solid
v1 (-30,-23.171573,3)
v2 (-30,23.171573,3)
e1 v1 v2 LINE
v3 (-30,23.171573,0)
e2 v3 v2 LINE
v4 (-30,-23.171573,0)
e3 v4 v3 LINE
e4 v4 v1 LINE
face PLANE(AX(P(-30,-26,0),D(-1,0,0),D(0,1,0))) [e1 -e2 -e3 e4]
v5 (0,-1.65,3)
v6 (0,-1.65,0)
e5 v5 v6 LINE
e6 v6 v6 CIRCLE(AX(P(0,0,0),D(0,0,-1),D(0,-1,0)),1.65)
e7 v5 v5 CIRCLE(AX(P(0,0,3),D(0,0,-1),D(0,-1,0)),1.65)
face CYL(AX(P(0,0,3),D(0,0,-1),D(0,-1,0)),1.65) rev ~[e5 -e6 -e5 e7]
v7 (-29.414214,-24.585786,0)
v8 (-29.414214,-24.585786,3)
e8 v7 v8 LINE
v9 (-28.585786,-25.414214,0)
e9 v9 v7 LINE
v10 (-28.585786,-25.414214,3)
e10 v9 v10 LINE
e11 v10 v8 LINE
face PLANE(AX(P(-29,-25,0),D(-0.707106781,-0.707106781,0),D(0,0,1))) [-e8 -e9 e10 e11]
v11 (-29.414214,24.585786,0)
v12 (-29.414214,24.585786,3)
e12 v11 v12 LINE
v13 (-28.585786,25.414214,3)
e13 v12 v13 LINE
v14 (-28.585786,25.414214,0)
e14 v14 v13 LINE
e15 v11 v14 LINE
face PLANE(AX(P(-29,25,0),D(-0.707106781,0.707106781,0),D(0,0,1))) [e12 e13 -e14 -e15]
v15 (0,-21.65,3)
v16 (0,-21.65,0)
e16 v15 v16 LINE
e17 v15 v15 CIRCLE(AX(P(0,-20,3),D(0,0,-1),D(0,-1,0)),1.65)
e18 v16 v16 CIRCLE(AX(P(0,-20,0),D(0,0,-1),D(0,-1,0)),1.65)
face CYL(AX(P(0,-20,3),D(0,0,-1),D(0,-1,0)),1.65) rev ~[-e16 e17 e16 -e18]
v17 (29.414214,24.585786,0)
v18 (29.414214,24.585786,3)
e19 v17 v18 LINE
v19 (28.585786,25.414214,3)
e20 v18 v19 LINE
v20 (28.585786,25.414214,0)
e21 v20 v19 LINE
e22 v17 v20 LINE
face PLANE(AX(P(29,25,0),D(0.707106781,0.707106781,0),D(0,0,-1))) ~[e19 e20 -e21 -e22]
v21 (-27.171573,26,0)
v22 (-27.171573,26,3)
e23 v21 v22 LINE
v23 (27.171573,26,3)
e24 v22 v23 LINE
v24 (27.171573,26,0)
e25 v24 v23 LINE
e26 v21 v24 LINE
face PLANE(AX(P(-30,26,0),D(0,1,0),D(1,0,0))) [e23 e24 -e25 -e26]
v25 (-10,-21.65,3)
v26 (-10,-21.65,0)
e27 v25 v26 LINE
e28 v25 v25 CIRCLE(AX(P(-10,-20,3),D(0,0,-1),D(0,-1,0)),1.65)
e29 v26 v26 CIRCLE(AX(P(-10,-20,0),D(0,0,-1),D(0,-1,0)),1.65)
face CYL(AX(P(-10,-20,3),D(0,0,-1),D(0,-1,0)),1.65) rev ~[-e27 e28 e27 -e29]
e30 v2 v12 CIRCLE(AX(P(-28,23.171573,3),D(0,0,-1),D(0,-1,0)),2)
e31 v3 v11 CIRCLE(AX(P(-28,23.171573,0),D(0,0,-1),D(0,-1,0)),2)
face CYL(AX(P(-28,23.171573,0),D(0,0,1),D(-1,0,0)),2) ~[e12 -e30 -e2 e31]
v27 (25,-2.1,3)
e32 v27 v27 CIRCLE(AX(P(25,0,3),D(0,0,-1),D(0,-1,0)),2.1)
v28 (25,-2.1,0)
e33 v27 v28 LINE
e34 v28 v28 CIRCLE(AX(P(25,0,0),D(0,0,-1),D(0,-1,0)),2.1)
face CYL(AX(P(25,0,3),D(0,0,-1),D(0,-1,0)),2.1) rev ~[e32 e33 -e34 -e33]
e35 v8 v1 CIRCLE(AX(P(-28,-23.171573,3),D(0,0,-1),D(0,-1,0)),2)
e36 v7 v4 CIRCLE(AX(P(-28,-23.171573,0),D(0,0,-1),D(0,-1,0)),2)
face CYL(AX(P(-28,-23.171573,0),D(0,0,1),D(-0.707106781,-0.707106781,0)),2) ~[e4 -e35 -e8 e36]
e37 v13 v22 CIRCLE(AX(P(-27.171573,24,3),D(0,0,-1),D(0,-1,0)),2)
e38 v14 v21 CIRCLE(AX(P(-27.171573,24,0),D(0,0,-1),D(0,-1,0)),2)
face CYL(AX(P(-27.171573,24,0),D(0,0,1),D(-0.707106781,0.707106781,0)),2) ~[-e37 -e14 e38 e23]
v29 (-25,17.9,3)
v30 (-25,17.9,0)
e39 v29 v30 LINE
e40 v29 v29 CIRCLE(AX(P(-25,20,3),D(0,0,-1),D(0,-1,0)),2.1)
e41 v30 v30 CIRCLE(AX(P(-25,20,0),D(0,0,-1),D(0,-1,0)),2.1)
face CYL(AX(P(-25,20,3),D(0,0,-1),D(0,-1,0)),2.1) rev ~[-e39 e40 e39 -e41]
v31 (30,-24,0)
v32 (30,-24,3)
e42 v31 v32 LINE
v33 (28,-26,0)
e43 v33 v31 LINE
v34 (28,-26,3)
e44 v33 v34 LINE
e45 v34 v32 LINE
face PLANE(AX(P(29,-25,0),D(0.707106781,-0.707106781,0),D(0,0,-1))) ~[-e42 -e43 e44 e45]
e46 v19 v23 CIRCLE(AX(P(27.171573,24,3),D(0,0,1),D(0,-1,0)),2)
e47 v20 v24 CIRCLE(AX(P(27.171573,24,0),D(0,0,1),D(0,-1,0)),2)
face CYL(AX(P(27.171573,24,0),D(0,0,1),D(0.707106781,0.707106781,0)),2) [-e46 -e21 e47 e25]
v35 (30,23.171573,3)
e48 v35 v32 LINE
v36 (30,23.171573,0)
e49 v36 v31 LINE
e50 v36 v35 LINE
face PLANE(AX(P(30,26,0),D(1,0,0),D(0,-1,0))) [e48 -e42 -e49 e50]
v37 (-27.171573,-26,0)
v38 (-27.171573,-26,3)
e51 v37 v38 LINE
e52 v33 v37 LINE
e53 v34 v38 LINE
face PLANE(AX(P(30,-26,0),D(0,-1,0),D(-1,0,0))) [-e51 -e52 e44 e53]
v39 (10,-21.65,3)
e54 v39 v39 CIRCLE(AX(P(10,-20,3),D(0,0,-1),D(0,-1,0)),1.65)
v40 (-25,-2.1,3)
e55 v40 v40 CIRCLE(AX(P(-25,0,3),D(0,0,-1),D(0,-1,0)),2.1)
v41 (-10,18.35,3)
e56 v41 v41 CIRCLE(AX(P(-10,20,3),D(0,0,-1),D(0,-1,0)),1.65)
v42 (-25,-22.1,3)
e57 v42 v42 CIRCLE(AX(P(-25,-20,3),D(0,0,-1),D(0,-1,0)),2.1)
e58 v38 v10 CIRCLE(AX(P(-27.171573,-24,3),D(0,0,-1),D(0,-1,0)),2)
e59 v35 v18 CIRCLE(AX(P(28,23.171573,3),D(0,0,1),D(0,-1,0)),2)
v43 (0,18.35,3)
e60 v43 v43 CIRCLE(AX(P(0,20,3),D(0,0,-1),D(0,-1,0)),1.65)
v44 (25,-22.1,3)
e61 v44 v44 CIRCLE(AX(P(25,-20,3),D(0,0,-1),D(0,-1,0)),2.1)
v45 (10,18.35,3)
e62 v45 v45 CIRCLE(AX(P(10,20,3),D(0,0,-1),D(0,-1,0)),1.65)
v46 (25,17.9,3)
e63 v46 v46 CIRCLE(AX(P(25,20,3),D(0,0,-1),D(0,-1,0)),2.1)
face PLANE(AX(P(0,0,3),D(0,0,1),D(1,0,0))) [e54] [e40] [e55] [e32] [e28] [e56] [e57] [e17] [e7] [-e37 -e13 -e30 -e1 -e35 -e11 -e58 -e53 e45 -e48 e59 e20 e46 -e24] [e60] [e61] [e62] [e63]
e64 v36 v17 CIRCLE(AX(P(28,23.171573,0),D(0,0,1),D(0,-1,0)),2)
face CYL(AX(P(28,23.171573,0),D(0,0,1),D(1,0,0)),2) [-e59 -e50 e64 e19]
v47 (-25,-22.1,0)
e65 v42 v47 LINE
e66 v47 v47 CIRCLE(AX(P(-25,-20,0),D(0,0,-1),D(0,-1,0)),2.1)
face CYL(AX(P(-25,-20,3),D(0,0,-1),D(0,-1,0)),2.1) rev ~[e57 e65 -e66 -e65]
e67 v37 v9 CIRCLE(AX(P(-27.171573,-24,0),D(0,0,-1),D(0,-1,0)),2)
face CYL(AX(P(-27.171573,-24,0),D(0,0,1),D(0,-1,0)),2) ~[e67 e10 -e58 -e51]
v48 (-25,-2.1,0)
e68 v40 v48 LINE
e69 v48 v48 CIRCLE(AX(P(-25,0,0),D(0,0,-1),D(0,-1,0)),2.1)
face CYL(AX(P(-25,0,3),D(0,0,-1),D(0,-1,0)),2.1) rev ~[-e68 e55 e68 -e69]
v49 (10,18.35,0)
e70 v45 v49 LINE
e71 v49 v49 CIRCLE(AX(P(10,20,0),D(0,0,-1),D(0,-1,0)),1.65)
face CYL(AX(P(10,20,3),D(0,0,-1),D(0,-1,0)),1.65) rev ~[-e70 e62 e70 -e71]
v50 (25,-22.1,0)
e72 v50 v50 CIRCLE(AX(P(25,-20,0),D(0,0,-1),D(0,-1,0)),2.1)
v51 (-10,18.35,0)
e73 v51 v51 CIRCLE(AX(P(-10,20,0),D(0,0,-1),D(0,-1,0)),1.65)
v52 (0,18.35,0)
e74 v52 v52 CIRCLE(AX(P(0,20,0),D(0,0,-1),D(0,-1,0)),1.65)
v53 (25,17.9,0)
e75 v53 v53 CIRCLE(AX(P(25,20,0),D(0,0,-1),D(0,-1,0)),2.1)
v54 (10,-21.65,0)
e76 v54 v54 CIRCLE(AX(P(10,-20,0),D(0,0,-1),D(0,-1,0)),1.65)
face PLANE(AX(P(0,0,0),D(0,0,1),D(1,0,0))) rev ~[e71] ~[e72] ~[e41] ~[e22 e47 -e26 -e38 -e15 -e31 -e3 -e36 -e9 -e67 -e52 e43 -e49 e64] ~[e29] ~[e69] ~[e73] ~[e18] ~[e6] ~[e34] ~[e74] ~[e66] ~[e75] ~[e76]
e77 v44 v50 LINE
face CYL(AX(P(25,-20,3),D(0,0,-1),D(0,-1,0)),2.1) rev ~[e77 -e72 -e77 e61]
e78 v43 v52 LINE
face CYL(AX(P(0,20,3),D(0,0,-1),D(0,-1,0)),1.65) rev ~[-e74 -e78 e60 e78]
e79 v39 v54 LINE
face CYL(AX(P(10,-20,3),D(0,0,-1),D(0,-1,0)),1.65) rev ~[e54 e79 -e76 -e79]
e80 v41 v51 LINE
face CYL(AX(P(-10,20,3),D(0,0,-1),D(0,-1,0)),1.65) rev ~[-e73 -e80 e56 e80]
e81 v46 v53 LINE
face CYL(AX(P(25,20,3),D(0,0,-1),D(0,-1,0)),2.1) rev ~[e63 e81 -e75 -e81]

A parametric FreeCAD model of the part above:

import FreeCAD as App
import Part
import Sketcher
from FreeCAD import Vector


def edges_at(feature, points):
    """Names of the edges that pass closest to the given points."""
    edges = feature.Shape.Edges
    near = lambda p: min(range(len(edges)), key=lambda i: edges[i].distToShape(Part.Vertex(*p))[0])
    return sorted({f"Edge{near(p) + 1}" for p in points})

doc = App.newDocument("Part")
body = doc.addObject("PartDesign::Body", "Body")

# Sketch on XY plane
sketch1 = body.newObject("Sketcher::SketchObject", "Sketch")
sketch1.AttachmentSupport = (doc.getObject("XY_Plane"), [""])
sketch1.MapMode = "FlatFace"
sketch1.addGeometry([
    Part.LineSegment(Vector(-30, -26, 0), Vector(30, -26, 0)),
    Part.LineSegment(Vector(30, -26, 0), Vector(30, 26, 0)),
    Part.LineSegment(Vector(30, 26, 0), Vector(-30, 26, 0)),
    Part.LineSegment(Vector(-30, 26, 0), Vector(-30, -26, 0)),
], False)
sketch1.addConstraint([
    Sketcher.Constraint("Coincident", 0, 2, 1, 1),
    Sketcher.Constraint("Coincident", 1, 2, 2, 1),
    Sketcher.Constraint("Coincident", 2, 2, 3, 1),
    Sketcher.Constraint("Coincident", 3, 2, 0, 1),
    Sketcher.Constraint("Horizontal", 0),
    Sketcher.Constraint("Vertical", 1),
    Sketcher.Constraint("Horizontal", 2),
    Sketcher.Constraint("Vertical", 3),
    Sketcher.Constraint("Symmetric", 0, 2, 2, 2, -1, 1),
    Sketcher.Constraint("DistanceX", 0, 1, 0, 2, 60.0),
    Sketcher.Constraint("DistanceY", 1, 1, 1, 2, 52.0),
])
pad1 = body.newObject("PartDesign::Pad", "Pad")
pad1.Profile = sketch1
pad1.Length = 3

# Sketch on XY plane
sketch2 = body.newObject("Sketcher::SketchObject", "Sketch001")
sketch2.AttachmentSupport = (doc.getObject("XY_Plane"), [""])
sketch2.MapMode = "FlatFace"
sketch2.AttachmentOffset = App.Placement(Vector(0, 0, 3), App.Rotation())
sketch2.addGeometry([
    Part.Circle(Vector(-10, 20, 0), Vector(0, 0, 1), 1.6),  # 0
    Part.Circle(Vector(-10, -20, 0), Vector(0, 0, 1), 1.6),  # 1
    Part.Circle(Vector(10, -20, 0), Vector(0, 0, 1), 1.6),  # 2
    Part.Circle(Vector(10, 20, 0), Vector(0, 0, 1), 1.6),  # 3
    Part.Circle(Vector(0, -20, 0), Vector(0, 0, 1), 1.6),  # 4
    Part.Circle(Vector(0, 0, 0), Vector(0, 0, 1), 1.6),  # 5
    Part.Circle(Vector(0, 20, 0), Vector(0, 0, 1), 1.6),  # 6
], False)
sketch2.addConstraint([
    Sketcher.Constraint("Coincident", 5, 3, -1, 1),
    Sketcher.Constraint("Equal", 0, 1),
    Sketcher.Constraint("Equal", 1, 2),
    Sketcher.Constraint("Equal", 2, 3),
    Sketcher.Constraint("Equal", 3, 4),
    Sketcher.Constraint("Equal", 4, 5),
    Sketcher.Constraint("Equal", 5, 6),
    Sketcher.Constraint("Symmetric", 0, 3, 2, 3, -1, 1),
    Sketcher.Constraint("Symmetric", 1, 3, 3, 3, -1, 1),
    Sketcher.Constraint("Symmetric", 4, 3, 6, 3, -1, 1),
    Sketcher.Constraint("Symmetric", 1, 3, 2, 3, -2),
    Sketcher.Constraint("PointOnObject", 4, 3, -2),
    Sketcher.Constraint("Horizontal", 2, 3, 4, 3),
    Sketcher.Constraint("Diameter", 0, 3.3),
    Sketcher.Constraint("DistanceX", 0, 3, -1, 1, 10.0),
    Sketcher.Constraint("DistanceY", -1, 1, 0, 3, 20.0),
])
doc.recompute()
hole = body.newObject("PartDesign::Hole", "Hole")
hole.Profile = sketch2
hole.ThreadType = "None"
hole.Diameter = 3.3
hole.DepthType = "Dimension"
hole.Depth = 8.8
hole.DrillPoint = "Flat"

# Sketch on XY plane
sketch3 = body.newObject("Sketcher::SketchObject", "Sketch002")
sketch3.AttachmentSupport = (doc.getObject("XY_Plane"), [""])
sketch3.MapMode = "FlatFace"
sketch3.AttachmentOffset = App.Placement(Vector(0, 0, 3), App.Rotation())
sketch3.addGeometry([
    Part.Circle(Vector(-25, 20, 0), Vector(0, 0, 1), 2.1),  # 0
    Part.Circle(Vector(-25, -20, 0), Vector(0, 0, 1), 2.1),  # 1
    Part.Circle(Vector(25, -20, 0), Vector(0, 0, 1), 2.1),  # 2
    Part.Circle(Vector(25, 20, 0), Vector(0, 0, 1), 2.1),  # 3
    Part.Circle(Vector(-25, 0, 0), Vector(0, 0, 1), 2.1),  # 4
    Part.Circle(Vector(25, 0, 0), Vector(0, 0, 1), 2.1),  # 5
], False)
sketch3.addConstraint([
    Sketcher.Constraint("Equal", 0, 1),
    Sketcher.Constraint("Equal", 1, 2),
    Sketcher.Constraint("Equal", 2, 3),
    Sketcher.Constraint("Equal", 3, 4),
    Sketcher.Constraint("Equal", 4, 5),
    Sketcher.Constraint("Symmetric", 0, 3, 2, 3, -1, 1),
    Sketcher.Constraint("Symmetric", 1, 3, 3, 3, -1, 1),
    Sketcher.Constraint("Symmetric", 4, 3, 5, 3, -1, 1),
    Sketcher.Constraint("Symmetric", 1, 3, 2, 3, -2),
    Sketcher.Constraint("PointOnObject", 4, 3, -1),
    Sketcher.Constraint("Vertical", 1, 3, 4, 3),
    Sketcher.Constraint("Diameter", 0, 4.2),
    Sketcher.Constraint("DistanceX", 0, 3, -1, 1, 25.0),
    Sketcher.Constraint("DistanceY", -1, 1, 0, 3, 20.0),
])
doc.recompute()
hole2 = body.newObject("PartDesign::Hole", "Hole001")
hole2.Profile = sketch3
hole2.ThreadType = "None"
hole2.Diameter = 4.2
hole2.DepthType = "Dimension"
hole2.Depth = 8.8
hole2.DrillPoint = "Flat"
doc.recompute()

chamfer = body.newObject("PartDesign::Chamfer", "Chamfer")
chamfer.Base = (hole2, edges_at(hole2, [
    (-30, 26, 1.5),
    (-30, -26, 1.5),
    (30, -26, 1.5),
    (30, 26, 1.5),
]))
chamfer.Size = 2
doc.recompute()

fillet = body.newObject("PartDesign::Fillet", "Fillet")
fillet.Base = (chamfer, edges_at(chamfer, [
    (30, 24, 1.5),
    (28, 26, 1.5),
    (-28, 26, 1.5),
    (-30, 24, 1.5),
    (-30, -24, 1.5),
    (-28, -26, 1.5),
]))
fillet.Radius = 2

doc.recompute()
